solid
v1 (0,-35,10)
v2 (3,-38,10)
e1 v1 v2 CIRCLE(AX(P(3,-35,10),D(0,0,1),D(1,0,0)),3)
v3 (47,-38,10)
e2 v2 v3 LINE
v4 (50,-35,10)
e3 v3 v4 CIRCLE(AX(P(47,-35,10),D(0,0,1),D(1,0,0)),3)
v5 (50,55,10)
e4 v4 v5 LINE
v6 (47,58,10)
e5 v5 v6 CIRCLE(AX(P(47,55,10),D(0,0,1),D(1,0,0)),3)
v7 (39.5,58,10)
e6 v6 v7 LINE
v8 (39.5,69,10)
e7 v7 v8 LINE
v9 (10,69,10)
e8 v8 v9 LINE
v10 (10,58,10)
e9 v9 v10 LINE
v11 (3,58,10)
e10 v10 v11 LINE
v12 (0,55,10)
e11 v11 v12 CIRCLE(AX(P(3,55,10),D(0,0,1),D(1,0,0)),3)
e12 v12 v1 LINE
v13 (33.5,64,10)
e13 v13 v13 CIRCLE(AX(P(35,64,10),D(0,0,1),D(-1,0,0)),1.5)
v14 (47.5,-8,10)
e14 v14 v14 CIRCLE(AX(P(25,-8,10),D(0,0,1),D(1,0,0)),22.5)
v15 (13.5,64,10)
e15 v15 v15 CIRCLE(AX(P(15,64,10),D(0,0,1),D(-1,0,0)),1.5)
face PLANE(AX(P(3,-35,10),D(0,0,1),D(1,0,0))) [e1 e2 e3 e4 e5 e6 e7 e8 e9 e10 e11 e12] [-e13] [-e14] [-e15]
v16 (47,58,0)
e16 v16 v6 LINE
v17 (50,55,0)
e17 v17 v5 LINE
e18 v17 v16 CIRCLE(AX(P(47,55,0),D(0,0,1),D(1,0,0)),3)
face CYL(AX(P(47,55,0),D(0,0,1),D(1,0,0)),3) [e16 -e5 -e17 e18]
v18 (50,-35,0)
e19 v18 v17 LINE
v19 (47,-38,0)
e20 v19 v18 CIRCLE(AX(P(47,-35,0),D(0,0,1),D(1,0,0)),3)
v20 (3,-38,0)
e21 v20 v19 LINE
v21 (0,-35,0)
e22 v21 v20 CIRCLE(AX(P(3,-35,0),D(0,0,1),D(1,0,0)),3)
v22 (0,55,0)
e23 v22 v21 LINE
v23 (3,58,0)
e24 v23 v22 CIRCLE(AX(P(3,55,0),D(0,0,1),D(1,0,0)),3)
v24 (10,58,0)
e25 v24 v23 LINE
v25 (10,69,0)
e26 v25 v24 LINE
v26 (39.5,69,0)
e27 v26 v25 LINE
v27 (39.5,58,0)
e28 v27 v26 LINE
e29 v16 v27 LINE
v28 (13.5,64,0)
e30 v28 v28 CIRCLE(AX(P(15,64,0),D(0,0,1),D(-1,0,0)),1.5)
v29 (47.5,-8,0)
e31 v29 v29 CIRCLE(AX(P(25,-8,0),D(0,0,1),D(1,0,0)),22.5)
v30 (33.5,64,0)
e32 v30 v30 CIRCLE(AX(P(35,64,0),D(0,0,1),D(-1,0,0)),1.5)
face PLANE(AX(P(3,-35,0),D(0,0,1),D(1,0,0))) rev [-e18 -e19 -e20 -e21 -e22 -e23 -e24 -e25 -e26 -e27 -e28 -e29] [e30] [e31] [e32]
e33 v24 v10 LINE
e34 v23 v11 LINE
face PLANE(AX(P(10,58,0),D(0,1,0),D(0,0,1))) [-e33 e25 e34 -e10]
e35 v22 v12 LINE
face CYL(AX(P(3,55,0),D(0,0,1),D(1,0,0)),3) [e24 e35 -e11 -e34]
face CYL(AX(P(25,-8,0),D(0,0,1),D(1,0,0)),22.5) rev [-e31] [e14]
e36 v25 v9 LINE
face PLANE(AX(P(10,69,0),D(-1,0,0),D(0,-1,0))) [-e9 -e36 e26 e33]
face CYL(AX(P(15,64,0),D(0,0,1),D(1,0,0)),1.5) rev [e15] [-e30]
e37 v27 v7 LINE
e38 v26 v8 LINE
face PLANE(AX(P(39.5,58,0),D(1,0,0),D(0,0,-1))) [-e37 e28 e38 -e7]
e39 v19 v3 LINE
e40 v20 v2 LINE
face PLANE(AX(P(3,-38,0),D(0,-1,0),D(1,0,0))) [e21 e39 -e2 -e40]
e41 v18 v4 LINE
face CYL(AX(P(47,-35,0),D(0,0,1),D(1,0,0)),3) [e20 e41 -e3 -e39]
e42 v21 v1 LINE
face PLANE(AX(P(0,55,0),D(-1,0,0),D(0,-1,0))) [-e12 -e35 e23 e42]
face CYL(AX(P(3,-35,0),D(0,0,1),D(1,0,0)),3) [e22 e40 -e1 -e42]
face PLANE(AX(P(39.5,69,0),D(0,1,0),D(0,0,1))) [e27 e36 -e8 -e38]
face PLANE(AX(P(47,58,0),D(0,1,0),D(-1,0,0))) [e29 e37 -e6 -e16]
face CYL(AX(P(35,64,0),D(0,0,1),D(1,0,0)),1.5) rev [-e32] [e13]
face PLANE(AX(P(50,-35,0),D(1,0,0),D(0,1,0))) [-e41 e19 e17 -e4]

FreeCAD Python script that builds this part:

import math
import FreeCAD as App
import Part
import Sketcher
from FreeCAD import Vector
Q = App.Units.Quantity

doc = App.newDocument("Part")
body = doc.addObject("PartDesign::Body", "Body")

sketch1 = body.newObject("Sketcher::SketchObject", "Sketch")
sketch1.AttachmentSupport = (doc.getObject("XY_Plane"), [""])
sketch1.MapMode = "FlatFace"
sketch1.AttachmentOffset = App.Placement(Vector(0, 0, 10), App.Rotation())
sketch1.addGeometry([
    Part.LineSegment(Vector(3, -38, 0), Vector(47, -38, 0)),
    Part.ArcOfCircle(Part.Circle(Vector(47, -35, 0), Vector(0, 0, 1), 3), math.radians(-90), math.radians(0)),
    Part.LineSegment(Vector(50, -35, 0), Vector(50, 55, 0)),
    Part.ArcOfCircle(Part.Circle(Vector(47, 55, 0), Vector(0, 0, 1), 3), math.radians(0), math.radians(90)),
    Part.LineSegment(Vector(47, 58, 0), Vector(39.5, 58, 0)),
    Part.LineSegment(Vector(39.5, 58, 0), Vector(39.5, 69, 0)),
    Part.LineSegment(Vector(39.5, 69, 0), Vector(10, 69, 0)),
    Part.LineSegment(Vector(10, 69, 0), Vector(10, 58, 0)),
    Part.LineSegment(Vector(10, 58, 0), Vector(3, 58, 0)),
    Part.ArcOfCircle(Part.Circle(Vector(3, 55, 0), Vector(0, 0, 1), 3), math.radians(90), math.radians(180)),
    Part.LineSegment(Vector(0, 55, 0), Vector(0, -35, 0)),
    Part.ArcOfCircle(Part.Circle(Vector(3, -35, 0), Vector(0, 0, 1), 3), math.radians(180), math.radians(270)),
    Part.Circle(Vector(25, -8, 0), Vector(0, 0, 1), 22.5),
    Part.Circle(Vector(15, 64, 0), Vector(0, 0, 1), 1.5),
    Part.Circle(Vector(35, 64, 0), Vector(0, 0, 1), 1.5),
], False)
sketch1.addConstraint([
    Sketcher.Constraint("Tangent", 0, 2, 1, 1),
    Sketcher.Constraint("Tangent", 1, 2, 2, 1),
    Sketcher.Constraint("Tangent", 2, 2, 3, 1),
    Sketcher.Constraint("Tangent", 3, 2, 4, 1),
    Sketcher.Constraint("Coincident", 4, 2, 5, 1),
    Sketcher.Constraint("Coincident", 5, 2, 6, 1),
    Sketcher.Constraint("Coincident", 6, 2, 7, 1),
    Sketcher.Constraint("Coincident", 7, 2, 8, 1),
    Sketcher.Constraint("Tangent", 8, 2, 9, 1),
    Sketcher.Constraint("Tangent", 9, 2, 10, 1),
    Sketcher.Constraint("Tangent", 10, 2, 11, 1),
    Sketcher.Constraint("Tangent", 11, 2, 0, 1),
    Sketcher.Constraint("Horizontal", 0),
    Sketcher.Constraint("Vertical", 2),
    Sketcher.Constraint("Horizontal", 4),
    Sketcher.Constraint("Vertical", 5),
    Sketcher.Constraint("Horizontal", 6),
    Sketcher.Constraint("Vertical", 7),
    Sketcher.Constraint("Horizontal", 8),
    Sketcher.Constraint("Vertical", 10),
    Sketcher.Constraint("Equal", 1, 3),
    Sketcher.Constraint("Equal", 3, 9),
    Sketcher.Constraint("Equal", 9, 11),
    Sketcher.Constraint("Equal", 13, 14),
    Sketcher.Constraint("PointOnObject", 9, 2, -2),
    Sketcher.Constraint("Horizontal", 3, 3, 9, 3),
    Sketcher.Constraint("Horizontal", 13, 3, 14, 3),
    Sketcher.Constraint("Diameter", 12, Q("45 mm")),
    Sketcher.Constraint("Diameter", 13, Q("3 mm")),
    Sketcher.Constraint("Radius", 1, Q("3 mm")),
    Sketcher.Constraint("DistanceX", 0, 1, 0, 2, Q("44 mm")),
    Sketcher.Constraint("DistanceX", 8, 2, 8, 1, Q("7 mm")),
    Sketcher.Constraint("DistanceY", 2, 1, 2, 2, Q("90 mm")),
    Sketcher.Constraint("DistanceY", 5, 1, 5, 2, Q("11 mm")),
    Sketcher.Constraint("DistanceX", 4, 2, 4, 1, Q("7.5 mm")),
    Sketcher.Constraint("DistanceY", 1, 3, -1, 1, Q("35 mm")),
    Sketcher.Constraint("DistanceX", -1, 1, 12, 3, Q("25 mm")),
    Sketcher.Constraint("DistanceY", 12, 3, -1, 1, Q("8 mm")),
    Sketcher.Constraint("DistanceX", -1, 1, 13, 3, Q("15 mm")),
    Sketcher.Constraint("DistanceY", -1, 1, 13, 3, Q("64 mm")),
    Sketcher.Constraint("DistanceX", -1, 1, 14, 3, Q("35 mm")),
])
pad1 = body.newObject("PartDesign::Pad", "Pad")
pad1.Profile = sketch1
pad1.Length = 10
pad1.Reversed = True

doc.recompute()
